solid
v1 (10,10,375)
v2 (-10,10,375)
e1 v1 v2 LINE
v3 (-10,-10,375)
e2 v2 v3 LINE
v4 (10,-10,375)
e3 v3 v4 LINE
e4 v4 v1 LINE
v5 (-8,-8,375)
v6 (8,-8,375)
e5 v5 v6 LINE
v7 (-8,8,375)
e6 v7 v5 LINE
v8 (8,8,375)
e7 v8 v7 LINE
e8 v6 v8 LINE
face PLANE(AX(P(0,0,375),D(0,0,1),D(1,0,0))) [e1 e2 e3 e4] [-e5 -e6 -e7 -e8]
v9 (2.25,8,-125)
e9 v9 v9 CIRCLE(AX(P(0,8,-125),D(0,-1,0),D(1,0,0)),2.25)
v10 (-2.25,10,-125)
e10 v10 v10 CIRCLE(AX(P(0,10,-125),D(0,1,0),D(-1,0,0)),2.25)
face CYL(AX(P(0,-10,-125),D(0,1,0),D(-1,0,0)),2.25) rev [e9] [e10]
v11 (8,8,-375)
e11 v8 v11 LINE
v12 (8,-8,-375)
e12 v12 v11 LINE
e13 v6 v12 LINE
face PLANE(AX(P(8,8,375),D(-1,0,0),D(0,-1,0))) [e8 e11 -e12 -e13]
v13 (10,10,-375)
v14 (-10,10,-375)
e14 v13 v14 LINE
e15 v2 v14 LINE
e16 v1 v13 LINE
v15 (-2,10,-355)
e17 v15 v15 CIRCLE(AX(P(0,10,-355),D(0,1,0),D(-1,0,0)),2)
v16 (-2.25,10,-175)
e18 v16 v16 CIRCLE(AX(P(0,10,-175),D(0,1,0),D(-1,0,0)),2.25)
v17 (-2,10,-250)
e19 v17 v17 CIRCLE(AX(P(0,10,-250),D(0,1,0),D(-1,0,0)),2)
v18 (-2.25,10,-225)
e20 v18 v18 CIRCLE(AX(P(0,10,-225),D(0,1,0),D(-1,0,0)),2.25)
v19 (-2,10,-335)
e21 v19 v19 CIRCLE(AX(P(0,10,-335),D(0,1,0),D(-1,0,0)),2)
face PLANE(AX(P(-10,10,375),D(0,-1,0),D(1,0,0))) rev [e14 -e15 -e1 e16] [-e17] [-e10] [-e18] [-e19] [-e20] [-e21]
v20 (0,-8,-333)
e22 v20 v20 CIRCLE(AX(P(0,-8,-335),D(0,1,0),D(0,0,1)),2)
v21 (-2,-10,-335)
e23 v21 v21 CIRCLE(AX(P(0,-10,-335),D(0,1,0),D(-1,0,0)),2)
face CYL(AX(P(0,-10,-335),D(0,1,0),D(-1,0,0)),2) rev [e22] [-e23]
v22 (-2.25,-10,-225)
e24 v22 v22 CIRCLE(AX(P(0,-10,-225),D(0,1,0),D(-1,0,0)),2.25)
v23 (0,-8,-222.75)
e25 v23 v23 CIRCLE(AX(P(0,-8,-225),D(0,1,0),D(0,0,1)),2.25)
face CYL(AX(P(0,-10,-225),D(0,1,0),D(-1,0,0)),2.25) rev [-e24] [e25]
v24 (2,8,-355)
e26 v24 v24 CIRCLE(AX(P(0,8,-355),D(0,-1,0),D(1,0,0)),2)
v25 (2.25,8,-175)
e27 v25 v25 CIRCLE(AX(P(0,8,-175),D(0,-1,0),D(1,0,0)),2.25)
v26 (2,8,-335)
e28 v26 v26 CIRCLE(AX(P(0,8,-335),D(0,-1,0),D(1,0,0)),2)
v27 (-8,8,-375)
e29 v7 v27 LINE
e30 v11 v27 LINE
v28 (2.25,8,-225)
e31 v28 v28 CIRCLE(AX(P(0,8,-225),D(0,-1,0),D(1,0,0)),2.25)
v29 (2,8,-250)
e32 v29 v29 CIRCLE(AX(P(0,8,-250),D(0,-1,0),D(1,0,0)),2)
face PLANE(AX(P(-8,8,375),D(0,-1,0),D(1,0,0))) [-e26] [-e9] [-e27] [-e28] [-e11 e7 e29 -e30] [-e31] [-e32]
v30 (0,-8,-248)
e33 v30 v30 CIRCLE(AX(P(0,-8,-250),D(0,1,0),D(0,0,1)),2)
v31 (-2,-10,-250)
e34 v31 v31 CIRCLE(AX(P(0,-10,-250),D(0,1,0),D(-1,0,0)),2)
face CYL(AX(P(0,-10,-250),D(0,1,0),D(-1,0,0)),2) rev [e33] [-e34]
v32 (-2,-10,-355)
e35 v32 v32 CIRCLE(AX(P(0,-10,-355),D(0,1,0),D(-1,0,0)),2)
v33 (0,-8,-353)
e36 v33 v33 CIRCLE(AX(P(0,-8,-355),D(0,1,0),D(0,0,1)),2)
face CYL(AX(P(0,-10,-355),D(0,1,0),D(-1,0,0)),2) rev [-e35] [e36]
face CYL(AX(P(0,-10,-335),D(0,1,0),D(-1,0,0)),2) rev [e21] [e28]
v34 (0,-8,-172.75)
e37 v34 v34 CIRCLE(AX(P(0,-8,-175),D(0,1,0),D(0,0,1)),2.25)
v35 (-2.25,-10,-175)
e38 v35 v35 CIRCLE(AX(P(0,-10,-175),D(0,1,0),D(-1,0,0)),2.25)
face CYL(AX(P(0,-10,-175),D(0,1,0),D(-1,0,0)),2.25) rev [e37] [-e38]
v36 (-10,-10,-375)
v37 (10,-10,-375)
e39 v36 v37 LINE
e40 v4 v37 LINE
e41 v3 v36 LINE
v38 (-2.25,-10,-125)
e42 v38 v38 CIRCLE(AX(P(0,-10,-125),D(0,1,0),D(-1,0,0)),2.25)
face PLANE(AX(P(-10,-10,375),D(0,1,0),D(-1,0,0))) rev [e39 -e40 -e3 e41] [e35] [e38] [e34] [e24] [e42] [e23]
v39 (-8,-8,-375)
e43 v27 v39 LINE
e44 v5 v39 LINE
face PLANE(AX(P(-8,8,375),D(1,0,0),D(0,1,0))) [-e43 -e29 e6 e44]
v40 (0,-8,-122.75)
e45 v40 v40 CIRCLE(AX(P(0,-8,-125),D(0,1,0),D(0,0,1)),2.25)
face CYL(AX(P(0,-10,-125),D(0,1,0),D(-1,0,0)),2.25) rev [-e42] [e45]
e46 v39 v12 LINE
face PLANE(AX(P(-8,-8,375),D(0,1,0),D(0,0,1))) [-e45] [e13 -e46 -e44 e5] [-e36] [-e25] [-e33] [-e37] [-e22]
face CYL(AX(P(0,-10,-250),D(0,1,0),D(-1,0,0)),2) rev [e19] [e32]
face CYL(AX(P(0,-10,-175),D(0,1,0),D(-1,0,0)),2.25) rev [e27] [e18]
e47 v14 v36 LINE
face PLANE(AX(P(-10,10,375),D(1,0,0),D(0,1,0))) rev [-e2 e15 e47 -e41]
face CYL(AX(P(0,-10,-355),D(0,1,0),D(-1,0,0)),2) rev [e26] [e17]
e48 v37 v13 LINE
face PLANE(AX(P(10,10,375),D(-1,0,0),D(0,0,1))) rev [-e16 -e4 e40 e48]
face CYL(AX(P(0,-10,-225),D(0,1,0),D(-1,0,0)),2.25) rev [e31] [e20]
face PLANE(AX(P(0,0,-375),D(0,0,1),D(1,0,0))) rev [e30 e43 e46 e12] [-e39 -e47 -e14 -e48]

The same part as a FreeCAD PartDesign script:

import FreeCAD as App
import Part
import Sketcher

V = App.Vector
Q = App.Units.Quantity

doc = App.newDocument("Part")
body = doc.addObject("PartDesign::Body", "Body")

sketch1 = doc.addObject("Sketcher::SketchObject", "Sketch")
body.addObject(sketch1)
sketch1.AttachmentSupport = (doc.XY_Plane, [""])
sketch1.MapMode = "FlatFace"
sketch1.addGeometry([
    Part.LineSegment(V(-10, 10, 0), V(-10, -10, 0)),
    Part.LineSegment(V(-10, -10, 0), V(10, -10, 0)),
    Part.LineSegment(V(10, -10, 0), V(10, 10, 0)),
    Part.LineSegment(V(10, 10, 0), V(-10, 10, 0)),
    Part.LineSegment(V(8, -8, 0), V(-8, -8, 0)),
    Part.LineSegment(V(-8, -8, 0), V(-8, 8, 0)),
    Part.LineSegment(V(-8, 8, 0), V(8, 8, 0)),
    Part.LineSegment(V(8, 8, 0), V(8, -8, 0)),
], False)
sketch1.addConstraint([
    Sketcher.Constraint("Coincident", 0, 2, 1, 1),
    Sketcher.Constraint("Coincident", 1, 2, 2, 1),
    Sketcher.Constraint("Coincident", 2, 2, 3, 1),
    Sketcher.Constraint("Coincident", 3, 2, 0, 1),
    Sketcher.Constraint("Coincident", 4, 2, 5, 1),
    Sketcher.Constraint("Coincident", 5, 2, 6, 1),
    Sketcher.Constraint("Coincident", 6, 2, 7, 1),
    Sketcher.Constraint("Coincident", 7, 2, 4, 1),
    Sketcher.Constraint("Vertical", 0),
    Sketcher.Constraint("Horizontal", 1),
    Sketcher.Constraint("Vertical", 2),
    Sketcher.Constraint("Horizontal", 3),
    Sketcher.Constraint("Horizontal", 4),
    Sketcher.Constraint("Vertical", 5),
    Sketcher.Constraint("Horizontal", 6),
    Sketcher.Constraint("Vertical", 7),
    Sketcher.Constraint("Symmetric", 0, 2, 2, 2, -1, 1),
    Sketcher.Constraint("Symmetric", 4, 2, 6, 2, -1, 1),
    Sketcher.Constraint("Equal", 3, 0),
    Sketcher.Constraint("Equal", 6, 5),
    Sketcher.Constraint("DistanceX", 1, 1, 1, 2, Q("20 mm")),
    Sketcher.Constraint("DistanceX", 4, 2, 4, 1, Q("16 mm")),
])
pad1 = doc.addObject("PartDesign::Pad", "Pad")
body.addObject(pad1)
pad1.Profile = sketch1
pad1.Length = 750
pad1.Midplane = True

sketch2 = doc.addObject("Sketcher::SketchObject", "Sketch001")
body.addObject(sketch2)
sketch2.AttachmentSupport = (doc.XZ_Plane, [""])
sketch2.MapMode = "FlatFace"
sketch2.AttachmentOffset = App.Placement(V(0, 0, -10), App.Rotation())
sketch2.addGeometry([
    Part.Circle(V(0, -385, 0), V(0, 0, 1), 2),
    Part.Circle(V(0, -355, 0), V(0, 0, 1), 2),
    Part.Circle(V(0, -250, 0), V(0, 0, 1), 2),
    Part.Circle(V(0, -335, 0), V(0, 0, 1), 2),
], False)
sketch2.addConstraint([
    Sketcher.Constraint("Equal", 0, 1),
    Sketcher.Constraint("Equal", 1, 2),
    Sketcher.Constraint("Equal", 2, 3),
    Sketcher.Constraint("PointOnObject", 0, 3, -2),
    Sketcher.Constraint("PointOnObject", 1, 3, -2),
    Sketcher.Constraint("PointOnObject", 2, 3, -2),
    Sketcher.Constraint("PointOnObject", 3, 3, -2),
    Sketcher.Constraint("Diameter", 0, Q("4 mm")),
    Sketcher.Constraint("DistanceY", 0, 3, -1, 1, Q("385 mm")),
    Sketcher.Constraint("DistanceY", 1, 3, -1, 1, Q("355 mm")),
    Sketcher.Constraint("DistanceY", 2, 3, -1, 1, Q("250 mm")),
    Sketcher.Constraint("DistanceY", 3, 3, -1, 1, Q("335 mm")),
])
pocket1 = doc.addObject("PartDesign::Pocket", "Pocket")
body.addObject(pocket1)
pocket1.Profile = sketch2
pocket1.Type = "ThroughAll"
pocket1.Reversed = True

sketch3 = doc.addObject("Sketcher::SketchObject", "Sketch002")
body.addObject(sketch3)
sketch3.AttachmentSupport = (doc.XZ_Plane, [""])
sketch3.MapMode = "FlatFace"
sketch3.AttachmentOffset = App.Placement(V(0, 0, -10), App.Rotation())
sketch3.addGeometry([
    Part.Circle(V(0, -125, 0), V(0, 0, 1), 2.2),
    Part.Circle(V(0, -175, 0), V(0, 0, 1), 2.2),
    Part.Circle(V(0, -225, 0), V(0, 0, 1), 2.2),
], False)
sketch3.addConstraint([
    Sketcher.Constraint("Equal", 0, 1),
    Sketcher.Constraint("Equal", 1, 2),
    Sketcher.Constraint("PointOnObject", 0, 3, -2),
    Sketcher.Constraint("PointOnObject", 1, 3, -2),
    Sketcher.Constraint("PointOnObject", 2, 3, -2),
    Sketcher.Constraint("Diameter", 0, Q("4.5 mm")),
    Sketcher.Constraint("DistanceY", 0, 3, -1, 1, Q("125 mm")),
    Sketcher.Constraint("DistanceY", 1, 3, -1, 1, Q("175 mm")),
    Sketcher.Constraint("DistanceY", 2, 3, -1, 1, Q("225 mm")),
])
pocket2 = doc.addObject("PartDesign::Pocket", "Pocket001")
body.addObject(pocket2)
pocket2.Profile = sketch3
pocket2.Type = "ThroughAll"
pocket2.Reversed = True

doc.recompute()
